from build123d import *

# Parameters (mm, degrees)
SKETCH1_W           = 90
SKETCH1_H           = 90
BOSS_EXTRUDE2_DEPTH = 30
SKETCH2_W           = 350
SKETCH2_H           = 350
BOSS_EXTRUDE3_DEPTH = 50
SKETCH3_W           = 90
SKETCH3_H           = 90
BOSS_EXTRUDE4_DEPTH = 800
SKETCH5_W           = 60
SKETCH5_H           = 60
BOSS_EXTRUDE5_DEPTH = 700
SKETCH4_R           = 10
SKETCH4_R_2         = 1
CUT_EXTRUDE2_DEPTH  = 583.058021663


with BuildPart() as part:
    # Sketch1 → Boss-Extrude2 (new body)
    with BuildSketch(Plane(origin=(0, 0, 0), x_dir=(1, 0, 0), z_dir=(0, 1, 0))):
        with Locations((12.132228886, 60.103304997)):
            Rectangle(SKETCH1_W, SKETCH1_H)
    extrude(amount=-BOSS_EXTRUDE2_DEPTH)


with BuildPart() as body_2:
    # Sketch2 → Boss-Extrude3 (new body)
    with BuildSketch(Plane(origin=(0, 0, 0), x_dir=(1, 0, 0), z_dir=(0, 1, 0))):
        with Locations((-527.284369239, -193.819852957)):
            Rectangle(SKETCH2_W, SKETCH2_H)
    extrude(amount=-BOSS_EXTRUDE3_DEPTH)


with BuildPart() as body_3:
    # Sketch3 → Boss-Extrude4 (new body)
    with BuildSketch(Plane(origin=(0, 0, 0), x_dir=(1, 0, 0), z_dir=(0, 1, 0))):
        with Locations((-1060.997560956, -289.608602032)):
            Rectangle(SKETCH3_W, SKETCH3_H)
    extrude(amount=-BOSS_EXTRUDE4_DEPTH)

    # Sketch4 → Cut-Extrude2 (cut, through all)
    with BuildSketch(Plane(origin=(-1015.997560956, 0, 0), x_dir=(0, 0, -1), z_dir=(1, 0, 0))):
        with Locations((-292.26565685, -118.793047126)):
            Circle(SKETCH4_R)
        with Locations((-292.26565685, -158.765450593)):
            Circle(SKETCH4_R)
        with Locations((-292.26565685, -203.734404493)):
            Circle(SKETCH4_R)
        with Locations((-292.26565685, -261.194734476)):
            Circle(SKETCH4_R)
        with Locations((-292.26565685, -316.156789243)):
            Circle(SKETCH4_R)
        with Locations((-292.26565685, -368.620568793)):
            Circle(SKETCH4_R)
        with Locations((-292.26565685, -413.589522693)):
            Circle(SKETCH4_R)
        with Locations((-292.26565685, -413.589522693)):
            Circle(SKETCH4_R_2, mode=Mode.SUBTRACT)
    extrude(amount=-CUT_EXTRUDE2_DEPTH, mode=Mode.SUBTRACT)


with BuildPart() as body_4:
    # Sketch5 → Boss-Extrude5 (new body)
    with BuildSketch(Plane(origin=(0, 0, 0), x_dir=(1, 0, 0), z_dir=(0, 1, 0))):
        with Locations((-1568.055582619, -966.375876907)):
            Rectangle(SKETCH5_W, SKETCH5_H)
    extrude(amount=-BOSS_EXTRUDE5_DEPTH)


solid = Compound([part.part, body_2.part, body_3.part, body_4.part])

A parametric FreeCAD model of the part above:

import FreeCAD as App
import Part
import Sketcher
from FreeCAD import Vector
Q = App.Units.Quantity

doc = App.newDocument("Part")
body = doc.addObject("PartDesign::Body", "Body")

# Sketch on XZ plane
sketch1 = body.newObject("Sketcher::SketchObject", "Sketch")
sketch1.AttachmentSupport = (doc.getObject("XZ_Plane"), [""])
sketch1.MapMode = "FlatFace"
sketch1.addGeometry(Part.LineSegment(Vector(-33, -105, 0), Vector(-33, -15, 0)), False)
sketch1.addGeometry(Part.LineSegment(Vector(-33, -15, 0), Vector(57, -15, 0)), False)
sketch1.addGeometry(Part.LineSegment(Vector(57, -15, 0), Vector(57, -105, 0)), False)
sketch1.addGeometry(Part.LineSegment(Vector(57, -105, 0), Vector(-33, -105, 0)), False)
sketch1.addConstraint(Sketcher.Constraint("Coincident", 0, 2, 1, 1))
sketch1.addConstraint(Sketcher.Constraint("Coincident", 1, 2, 2, 1))
sketch1.addConstraint(Sketcher.Constraint("Coincident", 2, 2, 3, 1))
sketch1.addConstraint(Sketcher.Constraint("Coincident", 3, 2, 0, 1))
sketch1.addConstraint(Sketcher.Constraint("Vertical", 0))
sketch1.addConstraint(Sketcher.Constraint("Horizontal", 1))
sketch1.addConstraint(Sketcher.Constraint("Vertical", 2))
sketch1.addConstraint(Sketcher.Constraint("Horizontal", 3))
sketch1.addConstraint(Sketcher.Constraint("Equal", 3, 0))
sketch1.addConstraint(Sketcher.Constraint("DistanceX", 1, 1, 1, 2, Q("90 mm")))
sketch1.addConstraint(Sketcher.Constraint("DistanceX", 0, 2, -1, 1, Q("32.867771 mm")))
sketch1.addConstraint(Sketcher.Constraint("DistanceY", 0, 2, -1, 1, Q("15.103305 mm")))
pad1 = body.newObject("PartDesign::Pad", "Pad")
pad1.Profile = sketch1
pad1.Length = 30
body2 = doc.addObject("PartDesign::Body", "Body001")

# Sketch on XZ plane
sketch2 = body2.newObject("Sketcher::SketchObject", "Sketch001")
sketch2.AttachmentSupport = (doc.getObject("XZ_Plane001"), [""])
sketch2.MapMode = "FlatFace"
sketch2.addGeometry(Part.LineSegment(Vector(-702, 19, 0), Vector(-702, 369, 0)), False)
sketch2.addGeometry(Part.LineSegment(Vector(-702, 369, 0), Vector(-352, 369, 0)), False)
sketch2.addGeometry(Part.LineSegment(Vector(-352, 369, 0), Vector(-352, 19, 0)), False)
sketch2.addGeometry(Part.LineSegment(Vector(-352, 19, 0), Vector(-702, 19, 0)), False)
sketch2.addConstraint(Sketcher.Constraint("Coincident", 0, 2, 1, 1))
sketch2.addConstraint(Sketcher.Constraint("Coincident", 1, 2, 2, 1))
sketch2.addConstraint(Sketcher.Constraint("Coincident", 2, 2, 3, 1))
sketch2.addConstraint(Sketcher.Constraint("Coincident", 3, 2, 0, 1))
sketch2.addConstraint(Sketcher.Constraint("Vertical", 0))
sketch2.addConstraint(Sketcher.Constraint("Horizontal", 1))
sketch2.addConstraint(Sketcher.Constraint("Vertical", 2))
sketch2.addConstraint(Sketcher.Constraint("Horizontal", 3))
sketch2.addConstraint(Sketcher.Constraint("Equal", 3, 0))
sketch2.addConstraint(Sketcher.Constraint("DistanceX", 1, 1, 1, 2, Q("350 mm")))
sketch2.addConstraint(Sketcher.Constraint("DistanceX", 0, 2, -1, 1, Q("702.284369 mm")))
sketch2.addConstraint(Sketcher.Constraint("DistanceY", -1, 1, 0, 2, Q("368.819853 mm")))
pad2 = body2.newObject("PartDesign::Pad", "Pad001")
pad2.Profile = sketch2
pad2.Length = 50
body3 = doc.addObject("PartDesign::Body", "Body002")
body3.AllowCompound = True

# Sketch on XZ plane
sketch3 = body3.newObject("Sketcher::SketchObject", "Sketch002")
sketch3.AttachmentSupport = (doc.getObject("XZ_Plane002"), [""])
sketch3.MapMode = "FlatFace"
sketch3.addGeometry(Part.LineSegment(Vector(-1106, 245, 0), Vector(-1106, 335, 0)), False)
sketch3.addGeometry(Part.LineSegment(Vector(-1106, 335, 0), Vector(-1016, 335, 0)), False)
sketch3.addGeometry(Part.LineSegment(Vector(-1016, 335, 0), Vector(-1016, 245, 0)), False)
sketch3.addGeometry(Part.LineSegment(Vector(-1016, 245, 0), Vector(-1106, 245, 0)), False)
sketch3.addConstraint(Sketcher.Constraint("Coincident", 0, 2, 1, 1))
sketch3.addConstraint(Sketcher.Constraint("Coincident", 1, 2, 2, 1))
sketch3.addConstraint(Sketcher.Constraint("Coincident", 2, 2, 3, 1))
sketch3.addConstraint(Sketcher.Constraint("Coincident", 3, 2, 0, 1))
sketch3.addConstraint(Sketcher.Constraint("Vertical", 0))
sketch3.addConstraint(Sketcher.Constraint("Horizontal", 1))
sketch3.addConstraint(Sketcher.Constraint("Vertical", 2))
sketch3.addConstraint(Sketcher.Constraint("Horizontal", 3))
sketch3.addConstraint(Sketcher.Constraint("Equal", 3, 0))
sketch3.addConstraint(Sketcher.Constraint("DistanceX", 1, 1, 1, 2, Q("90 mm")))
sketch3.addConstraint(Sketcher.Constraint("DistanceX", 0, 2, -1, 1, Q("1105.997561 mm")))
sketch3.addConstraint(Sketcher.Constraint("DistanceY", -1, 1, 0, 2, Q("334.608602 mm")))
pad3 = body3.newObject("PartDesign::Pad", "Pad002")
pad3.Profile = sketch3
pad3.Length = 800

# Sketch on YZ plane
sketch4 = body3.newObject("Sketcher::SketchObject", "Sketch003")
sketch4.AttachmentSupport = (doc.getObject("YZ_Plane002"), [""])
sketch4.MapMode = "FlatFace"
sketch4.AttachmentOffset = App.Placement(Vector(0, 0, -1015.997561), App.Rotation())
sketch4.addGeometry(Part.Circle(Vector(-118.8, 292.3, 0), Vector(0, 0, 1), 10), False)
sketch4.addGeometry(Part.Circle(Vector(-158.8, 292.3, 0), Vector(0, 0, 1), 10), False)
sketch4.addGeometry(Part.Circle(Vector(-203.7, 292.3, 0), Vector(0, 0, 1), 10), False)
sketch4.addGeometry(Part.Circle(Vector(-261.2, 292.3, 0), Vector(0, 0, 1), 10), False)
sketch4.addGeometry(Part.Circle(Vector(-316.2, 292.3, 0), Vector(0, 0, 1), 10), False)
sketch4.addGeometry(Part.Circle(Vector(-368.6, 292.3, 0), Vector(0, 0, 1), 10), False)
sketch4.addGeometry(Part.Circle(Vector(-413.6, 292.3, 0), Vector(0, 0, 1), 10), False)
sketch4.addGeometry(Part.Circle(Vector(-413.6, 292.3, 0), Vector(0, 0, 1), 1), False)
sketch4.addConstraint(Sketcher.Constraint("Coincident", 7, 3, 6, 3))
sketch4.addConstraint(Sketcher.Constraint("Equal", 0, 1))
sketch4.addConstraint(Sketcher.Constraint("Equal", 1, 2))
sketch4.addConstraint(Sketcher.Constraint("Equal", 2, 3))
sketch4.addConstraint(Sketcher.Constraint("Equal", 3, 4))
sketch4.addConstraint(Sketcher.Constraint("Equal", 4, 5))
sketch4.addConstraint(Sketcher.Constraint("Equal", 5, 6))
sketch4.addConstraint(Sketcher.Constraint("Horizontal", 0, 3, 1, 3))
sketch4.addConstraint(Sketcher.Constraint("Horizontal", 1, 3, 2, 3))
sketch4.addConstraint(Sketcher.Constraint("Horizontal", 2, 3, 3, 3))
sketch4.addConstraint(Sketcher.Constraint("Horizontal", 3, 3, 4, 3))
sketch4.addConstraint(Sketcher.Constraint("Horizontal", 4, 3, 5, 3))
sketch4.addConstraint(Sketcher.Constraint("Horizontal", 5, 3, 6, 3))
sketch4.addConstraint(Sketcher.Constraint("Diameter", 0, Q("20 mm")))
sketch4.addConstraint(Sketcher.Constraint("Diameter", 7, Q("2 mm")))
sketch4.addConstraint(Sketcher.Constraint("DistanceX", 1, 3, -1, 1, Q("158.765451 mm")))
sketch4.addConstraint(Sketcher.Constraint("DistanceX", 4, 3, -1, 1, Q("316.156789 mm")))
sketch4.addConstraint(Sketcher.Constraint("DistanceX", 5, 3, -1, 1, Q("368.620569 mm")))
sketch4.addConstraint(Sketcher.Constraint("DistanceX", 3, 3, 2, 3, Q("57.46033 mm")))
sketch4.addConstraint(Sketcher.Constraint("DistanceX", 5, 3, 0, 3, Q("249.827522 mm")))
sketch4.addConstraint(Sketcher.Constraint("DistanceX", 6, 3, 3, 3, Q("152.394788 mm")))
sketch4.addConstraint(Sketcher.Constraint("DistanceY", -1, 1, 0, 3, Q("292.265657 mm")))
sketch4.addConstraint(Sketcher.Constraint("DistanceX", 2, 3, -1, 1, Q("203.734404 mm")))
pocket1 = body3.newObject("PartDesign::Pocket", "Pocket")
pocket1.Profile = sketch4
pocket1.Type = "ThroughAll"
body4 = doc.addObject("PartDesign::Body", "Body003")

# Sketch on XZ plane
sketch5 = body4.newObject("Sketcher::SketchObject", "Sketch004")
sketch5.AttachmentSupport = (doc.getObject("XZ_Plane003"), [""])
sketch5.MapMode = "FlatFace"
sketch5.addGeometry(Part.LineSegment(Vector(-1598, 936, 0), Vector(-1598, 996, 0)), False)
sketch5.addGeometry(Part.LineSegment(Vector(-1598, 996, 0), Vector(-1538, 996, 0)), False)
sketch5.addGeometry(Part.LineSegment(Vector(-1538, 996, 0), Vector(-1538, 936, 0)), False)
sketch5.addGeometry(Part.LineSegment(Vector(-1538, 936, 0), Vector(-1598, 936, 0)), False)
sketch5.addConstraint(Sketcher.Constraint("Coincident", 0, 2, 1, 1))
sketch5.addConstraint(Sketcher.Constraint("Coincident", 1, 2, 2, 1))
sketch5.addConstraint(Sketcher.Constraint("Coincident", 2, 2, 3, 1))
sketch5.addConstraint(Sketcher.Constraint("Coincident", 3, 2, 0, 1))
sketch5.addConstraint(Sketcher.Constraint("Vertical", 0))
sketch5.addConstraint(Sketcher.Constraint("Horizontal", 1))
sketch5.addConstraint(Sketcher.Constraint("Vertical", 2))
sketch5.addConstraint(Sketcher.Constraint("Horizontal", 3))
sketch5.addConstraint(Sketcher.Constraint("Equal", 3, 0))
sketch5.addConstraint(Sketcher.Constraint("DistanceX", 1, 1, 1, 2, Q("60 mm")))
sketch5.addConstraint(Sketcher.Constraint("DistanceX", 0, 2, -1, 1, Q("1598.055583 mm")))
sketch5.addConstraint(Sketcher.Constraint("DistanceY", -1, 1, 0, 2, Q("996.375877 mm")))
pad4 = body4.newObject("PartDesign::Pad", "Pad003")
pad4.Profile = sketch5
pad4.Length = 700

doc.recompute()
